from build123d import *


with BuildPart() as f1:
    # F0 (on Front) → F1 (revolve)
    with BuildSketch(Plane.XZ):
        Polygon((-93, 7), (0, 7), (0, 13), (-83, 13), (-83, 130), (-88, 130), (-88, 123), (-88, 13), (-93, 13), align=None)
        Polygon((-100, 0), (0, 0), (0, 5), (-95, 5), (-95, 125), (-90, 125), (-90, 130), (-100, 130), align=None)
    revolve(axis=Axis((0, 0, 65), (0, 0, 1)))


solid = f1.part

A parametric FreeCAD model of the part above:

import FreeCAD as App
import Part
import Sketcher

V = App.Vector
Q = App.Units.Quantity

doc = App.newDocument("Part")
body = doc.addObject("PartDesign::Body", "Body")
body.AllowCompound = True

sketch1 = doc.addObject("Sketcher::SketchObject", "Sketch")
body.addObject(sketch1)
sketch1.AttachmentSupport = (doc.XZ_Plane, [""])
sketch1.MapMode = "FlatFace"
sketch1.addGeometry([
    Part.LineSegment(V(-93, 7, 0), V(0, 7, 0)),
    Part.LineSegment(V(0, 7, 0), V(0, 13, 0)),
    Part.LineSegment(V(0, 13, 0), V(-83, 13, 0)),
    Part.LineSegment(V(-83, 13, 0), V(-83, 130, 0)),
    Part.LineSegment(V(-83, 130, 0), V(-88, 130, 0)),
    Part.LineSegment(V(-88, 130, 0), V(-88, 13, 0)),
    Part.LineSegment(V(-88, 13, 0), V(-93, 13, 0)),
    Part.LineSegment(V(-93, 13, 0), V(-93, 7, 0)),
    Part.LineSegment(V(-100, 0, 0), V(0, 0, 0)),
    Part.LineSegment(V(0, 0, 0), V(0, 5, 0)),
    Part.LineSegment(V(0, 5, 0), V(-95, 5, 0)),
    Part.LineSegment(V(-95, 5, 0), V(-95, 125, 0)),
    Part.LineSegment(V(-95, 125, 0), V(-90, 125, 0)),
    Part.LineSegment(V(-90, 125, 0), V(-90, 130, 0)),
    Part.LineSegment(V(-90, 130, 0), V(-100, 130, 0)),
    Part.LineSegment(V(-100, 130, 0), V(-100, 0, 0)),
], False)
sketch1.addConstraint([
    Sketcher.Constraint("Coincident", 0, 2, 1, 1),
    Sketcher.Constraint("Coincident", 1, 2, 2, 1),
    Sketcher.Constraint("Coincident", 2, 2, 3, 1),
    Sketcher.Constraint("Coincident", 3, 2, 4, 1),
    Sketcher.Constraint("Coincident", 4, 2, 5, 1),
    Sketcher.Constraint("Coincident", 5, 2, 6, 1),
    Sketcher.Constraint("Coincident", 6, 2, 7, 1),
    Sketcher.Constraint("Coincident", 7, 2, 0, 1),
    Sketcher.Constraint("Coincident", 8, 2, 9, 1),
    Sketcher.Constraint("Coincident", 9, 2, 10, 1),
    Sketcher.Constraint("Coincident", 10, 2, 11, 1),
    Sketcher.Constraint("Coincident", 11, 2, 12, 1),
    Sketcher.Constraint("Coincident", 12, 2, 13, 1),
    Sketcher.Constraint("Coincident", 13, 2, 14, 1),
    Sketcher.Constraint("Coincident", 14, 2, 15, 1),
    Sketcher.Constraint("Coincident", 15, 2, 8, 1),
    Sketcher.Constraint("Horizontal", 0),
    Sketcher.Constraint("Vertical", 1),
    Sketcher.Constraint("Horizontal", 2),
    Sketcher.Constraint("Vertical", 3),
    Sketcher.Constraint("Horizontal", 4),
    Sketcher.Constraint("Vertical", 5),
    Sketcher.Constraint("Horizontal", 6),
    Sketcher.Constraint("Vertical", 7),
    Sketcher.Constraint("Horizontal", 8),
    Sketcher.Constraint("Vertical", 9),
    Sketcher.Constraint("Horizontal", 10),
    Sketcher.Constraint("Vertical", 11),
    Sketcher.Constraint("Horizontal", 12),
    Sketcher.Constraint("Vertical", 13),
    Sketcher.Constraint("Horizontal", 14),
    Sketcher.Constraint("Vertical", 15),
    Sketcher.Constraint("Coincident", 8, 2, -1, 1),
    Sketcher.Constraint("PointOnObject", 0, 2, -2),
    Sketcher.Constraint("Horizontal", 2, 2, 5, 2),
    Sketcher.Constraint("Horizontal", 4, 2, 13, 2),
    Sketcher.Constraint("Equal", 4, 6),
    Sketcher.Constraint("Equal", 6, 12),
    Sketcher.Constraint("Equal", 12, 9),
    Sketcher.Constraint("Equal", 9, 13),
    Sketcher.Constraint("DistanceX", 0, 1, 0, 2, Q("93 mm")),
    Sketcher.Constraint("DistanceX", 2, 2, 2, 1, Q("83 mm")),
    Sketcher.Constraint("DistanceX", 8, 1, 8, 2, Q("100 mm")),
    Sketcher.Constraint("DistanceX", 10, 2, 10, 1, Q("95 mm")),
    Sketcher.Constraint("DistanceY", 1, 1, 1, 2, Q("6 mm")),
    Sketcher.Constraint("DistanceY", 3, 1, 3, 2, Q("117 mm")),
    Sketcher.Constraint("DistanceY", 11, 1, 11, 2, Q("120 mm")),
])
revolution = doc.addObject("PartDesign::Revolution", "Revolution")
body.addObject(revolution)
revolution.Profile = sketch1
revolution.ReferenceAxis = (sketch1, ["V_Axis"])
revolution.Angle = 360

doc.recompute()
